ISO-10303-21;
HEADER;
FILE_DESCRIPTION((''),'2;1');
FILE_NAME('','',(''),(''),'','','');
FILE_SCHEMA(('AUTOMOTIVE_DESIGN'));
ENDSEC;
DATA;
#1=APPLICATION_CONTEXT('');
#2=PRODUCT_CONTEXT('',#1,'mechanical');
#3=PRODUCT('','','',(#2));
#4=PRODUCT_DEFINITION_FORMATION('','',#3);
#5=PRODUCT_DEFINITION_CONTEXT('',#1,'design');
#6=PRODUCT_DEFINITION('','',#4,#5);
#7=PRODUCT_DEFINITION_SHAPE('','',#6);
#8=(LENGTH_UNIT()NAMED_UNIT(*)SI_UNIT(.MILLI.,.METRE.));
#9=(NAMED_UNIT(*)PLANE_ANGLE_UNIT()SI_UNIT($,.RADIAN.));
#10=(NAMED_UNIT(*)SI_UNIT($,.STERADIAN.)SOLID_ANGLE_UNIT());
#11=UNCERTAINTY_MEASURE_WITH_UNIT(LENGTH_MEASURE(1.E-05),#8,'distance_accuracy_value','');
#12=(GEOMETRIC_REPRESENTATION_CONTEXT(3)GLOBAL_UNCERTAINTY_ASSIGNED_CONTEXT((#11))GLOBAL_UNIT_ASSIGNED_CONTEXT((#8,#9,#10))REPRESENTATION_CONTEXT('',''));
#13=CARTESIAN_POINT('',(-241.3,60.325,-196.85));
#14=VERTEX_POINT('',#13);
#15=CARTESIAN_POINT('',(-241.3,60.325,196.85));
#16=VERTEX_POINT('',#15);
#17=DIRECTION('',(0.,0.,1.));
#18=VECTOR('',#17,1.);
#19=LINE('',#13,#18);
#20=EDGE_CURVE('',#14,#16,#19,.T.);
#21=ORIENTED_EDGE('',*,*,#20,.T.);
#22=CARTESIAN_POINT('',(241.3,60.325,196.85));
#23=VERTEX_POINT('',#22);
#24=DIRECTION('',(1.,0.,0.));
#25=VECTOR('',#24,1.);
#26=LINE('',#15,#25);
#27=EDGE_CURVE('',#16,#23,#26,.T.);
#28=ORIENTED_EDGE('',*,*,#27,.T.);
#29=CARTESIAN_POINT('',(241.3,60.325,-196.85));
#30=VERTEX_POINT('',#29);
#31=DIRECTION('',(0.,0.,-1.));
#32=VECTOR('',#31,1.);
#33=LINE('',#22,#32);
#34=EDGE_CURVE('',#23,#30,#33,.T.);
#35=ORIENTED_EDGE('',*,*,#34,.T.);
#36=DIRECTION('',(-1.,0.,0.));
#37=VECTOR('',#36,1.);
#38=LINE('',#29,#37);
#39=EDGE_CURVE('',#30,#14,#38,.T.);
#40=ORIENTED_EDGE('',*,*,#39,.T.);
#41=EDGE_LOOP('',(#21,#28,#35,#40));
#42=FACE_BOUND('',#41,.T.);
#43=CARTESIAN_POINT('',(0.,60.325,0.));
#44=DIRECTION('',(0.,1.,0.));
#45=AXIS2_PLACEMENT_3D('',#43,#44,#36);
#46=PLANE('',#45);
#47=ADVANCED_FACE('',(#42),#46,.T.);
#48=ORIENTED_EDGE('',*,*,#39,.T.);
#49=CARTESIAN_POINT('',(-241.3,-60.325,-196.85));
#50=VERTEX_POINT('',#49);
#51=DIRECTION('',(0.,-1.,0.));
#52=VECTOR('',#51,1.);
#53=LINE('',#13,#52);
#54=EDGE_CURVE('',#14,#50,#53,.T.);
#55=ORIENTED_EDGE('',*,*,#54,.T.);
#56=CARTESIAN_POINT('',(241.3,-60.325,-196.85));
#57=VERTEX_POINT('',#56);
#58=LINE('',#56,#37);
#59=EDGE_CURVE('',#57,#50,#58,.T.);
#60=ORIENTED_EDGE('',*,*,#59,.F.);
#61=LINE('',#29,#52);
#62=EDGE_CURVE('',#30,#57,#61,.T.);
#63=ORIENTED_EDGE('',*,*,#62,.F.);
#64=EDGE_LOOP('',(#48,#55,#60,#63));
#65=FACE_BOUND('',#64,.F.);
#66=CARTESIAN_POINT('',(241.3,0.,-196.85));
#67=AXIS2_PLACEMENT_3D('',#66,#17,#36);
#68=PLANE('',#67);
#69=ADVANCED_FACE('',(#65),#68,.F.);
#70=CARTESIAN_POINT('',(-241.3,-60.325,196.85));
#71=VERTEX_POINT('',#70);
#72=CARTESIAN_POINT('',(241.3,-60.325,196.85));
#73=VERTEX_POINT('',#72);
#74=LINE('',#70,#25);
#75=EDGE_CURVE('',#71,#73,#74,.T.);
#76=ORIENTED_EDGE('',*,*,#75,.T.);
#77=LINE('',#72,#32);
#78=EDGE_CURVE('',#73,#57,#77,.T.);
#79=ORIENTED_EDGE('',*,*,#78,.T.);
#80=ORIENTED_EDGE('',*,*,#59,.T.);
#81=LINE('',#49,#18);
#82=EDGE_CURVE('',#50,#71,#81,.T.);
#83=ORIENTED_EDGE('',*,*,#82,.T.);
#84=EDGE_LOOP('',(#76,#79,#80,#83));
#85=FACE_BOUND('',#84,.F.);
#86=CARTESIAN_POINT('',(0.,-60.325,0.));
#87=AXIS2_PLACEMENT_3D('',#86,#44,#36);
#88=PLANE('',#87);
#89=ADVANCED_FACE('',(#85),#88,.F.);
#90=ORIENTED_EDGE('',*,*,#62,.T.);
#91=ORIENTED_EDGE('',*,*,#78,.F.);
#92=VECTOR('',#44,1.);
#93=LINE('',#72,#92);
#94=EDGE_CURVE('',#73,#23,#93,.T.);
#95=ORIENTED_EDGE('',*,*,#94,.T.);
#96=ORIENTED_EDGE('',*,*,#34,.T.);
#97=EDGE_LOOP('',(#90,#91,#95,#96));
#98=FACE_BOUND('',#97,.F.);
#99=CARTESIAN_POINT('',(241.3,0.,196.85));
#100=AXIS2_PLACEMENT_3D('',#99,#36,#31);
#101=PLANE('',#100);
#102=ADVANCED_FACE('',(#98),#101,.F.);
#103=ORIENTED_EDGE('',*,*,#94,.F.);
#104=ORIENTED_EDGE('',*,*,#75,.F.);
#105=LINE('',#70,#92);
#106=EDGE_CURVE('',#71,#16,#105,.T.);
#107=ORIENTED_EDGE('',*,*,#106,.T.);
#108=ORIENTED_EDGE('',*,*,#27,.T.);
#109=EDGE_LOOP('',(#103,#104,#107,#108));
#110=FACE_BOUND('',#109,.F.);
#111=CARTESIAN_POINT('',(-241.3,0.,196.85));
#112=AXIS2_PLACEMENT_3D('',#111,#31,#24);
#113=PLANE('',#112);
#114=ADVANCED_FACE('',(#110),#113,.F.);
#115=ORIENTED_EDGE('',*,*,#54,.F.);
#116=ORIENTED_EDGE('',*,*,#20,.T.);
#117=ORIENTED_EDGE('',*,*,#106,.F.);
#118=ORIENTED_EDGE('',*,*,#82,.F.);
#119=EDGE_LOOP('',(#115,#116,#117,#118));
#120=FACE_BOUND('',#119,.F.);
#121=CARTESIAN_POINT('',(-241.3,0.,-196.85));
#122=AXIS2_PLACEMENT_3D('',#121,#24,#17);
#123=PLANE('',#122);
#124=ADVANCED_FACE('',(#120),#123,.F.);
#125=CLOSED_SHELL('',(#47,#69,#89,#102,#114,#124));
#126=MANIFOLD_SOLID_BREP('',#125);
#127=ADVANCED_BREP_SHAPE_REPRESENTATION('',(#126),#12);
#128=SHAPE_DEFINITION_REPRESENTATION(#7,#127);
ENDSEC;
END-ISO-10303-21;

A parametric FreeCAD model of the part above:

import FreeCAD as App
import Part
import Sketcher
Q = App.Units.Quantity

doc = App.newDocument("Part")
body = doc.addObject("PartDesign::Body", "Body")

sketch1 = body.newObject("Sketcher::SketchObject", "Sketch")
sketch1.AttachmentSupport = (doc.getObject("XZ_Plane"), [""])
sketch1.MapMode = "FlatFace"
sketch1.addGeometry([
    Part.LineSegment(App.Vector(-241, -197, 0), App.Vector(-241, 197, 0)),
    Part.LineSegment(App.Vector(-241, 197, 0), App.Vector(241, 197, 0)),
    Part.LineSegment(App.Vector(241, 197, 0), App.Vector(241, -197, 0)),
    Part.LineSegment(App.Vector(241, -197, 0), App.Vector(-241, -197, 0)),
], False)
sketch1.addConstraint([
    Sketcher.Constraint("Coincident", 0, 2, 1, 1),
    Sketcher.Constraint("Coincident", 1, 2, 2, 1),
    Sketcher.Constraint("Coincident", 2, 2, 3, 1),
    Sketcher.Constraint("Coincident", 3, 2, 0, 1),
    Sketcher.Constraint("Vertical", 0),
    Sketcher.Constraint("Horizontal", 1),
    Sketcher.Constraint("Vertical", 2),
    Sketcher.Constraint("Horizontal", 3),
    Sketcher.Constraint("Symmetric", 0, 2, 2, 2, -1, 1),
    Sketcher.Constraint("DistanceX", 1, 1, 1, 2, Q("19 in")),
    Sketcher.Constraint("DistanceY", 0, 1, 0, 2, Q("15.5 in")),
])
pad1 = body.newObject("PartDesign::Pad", "Pad")
pad1.Profile = sketch1
pad1.Length = Q("4.75 in")
pad1.Midplane = True

doc.recompute()
